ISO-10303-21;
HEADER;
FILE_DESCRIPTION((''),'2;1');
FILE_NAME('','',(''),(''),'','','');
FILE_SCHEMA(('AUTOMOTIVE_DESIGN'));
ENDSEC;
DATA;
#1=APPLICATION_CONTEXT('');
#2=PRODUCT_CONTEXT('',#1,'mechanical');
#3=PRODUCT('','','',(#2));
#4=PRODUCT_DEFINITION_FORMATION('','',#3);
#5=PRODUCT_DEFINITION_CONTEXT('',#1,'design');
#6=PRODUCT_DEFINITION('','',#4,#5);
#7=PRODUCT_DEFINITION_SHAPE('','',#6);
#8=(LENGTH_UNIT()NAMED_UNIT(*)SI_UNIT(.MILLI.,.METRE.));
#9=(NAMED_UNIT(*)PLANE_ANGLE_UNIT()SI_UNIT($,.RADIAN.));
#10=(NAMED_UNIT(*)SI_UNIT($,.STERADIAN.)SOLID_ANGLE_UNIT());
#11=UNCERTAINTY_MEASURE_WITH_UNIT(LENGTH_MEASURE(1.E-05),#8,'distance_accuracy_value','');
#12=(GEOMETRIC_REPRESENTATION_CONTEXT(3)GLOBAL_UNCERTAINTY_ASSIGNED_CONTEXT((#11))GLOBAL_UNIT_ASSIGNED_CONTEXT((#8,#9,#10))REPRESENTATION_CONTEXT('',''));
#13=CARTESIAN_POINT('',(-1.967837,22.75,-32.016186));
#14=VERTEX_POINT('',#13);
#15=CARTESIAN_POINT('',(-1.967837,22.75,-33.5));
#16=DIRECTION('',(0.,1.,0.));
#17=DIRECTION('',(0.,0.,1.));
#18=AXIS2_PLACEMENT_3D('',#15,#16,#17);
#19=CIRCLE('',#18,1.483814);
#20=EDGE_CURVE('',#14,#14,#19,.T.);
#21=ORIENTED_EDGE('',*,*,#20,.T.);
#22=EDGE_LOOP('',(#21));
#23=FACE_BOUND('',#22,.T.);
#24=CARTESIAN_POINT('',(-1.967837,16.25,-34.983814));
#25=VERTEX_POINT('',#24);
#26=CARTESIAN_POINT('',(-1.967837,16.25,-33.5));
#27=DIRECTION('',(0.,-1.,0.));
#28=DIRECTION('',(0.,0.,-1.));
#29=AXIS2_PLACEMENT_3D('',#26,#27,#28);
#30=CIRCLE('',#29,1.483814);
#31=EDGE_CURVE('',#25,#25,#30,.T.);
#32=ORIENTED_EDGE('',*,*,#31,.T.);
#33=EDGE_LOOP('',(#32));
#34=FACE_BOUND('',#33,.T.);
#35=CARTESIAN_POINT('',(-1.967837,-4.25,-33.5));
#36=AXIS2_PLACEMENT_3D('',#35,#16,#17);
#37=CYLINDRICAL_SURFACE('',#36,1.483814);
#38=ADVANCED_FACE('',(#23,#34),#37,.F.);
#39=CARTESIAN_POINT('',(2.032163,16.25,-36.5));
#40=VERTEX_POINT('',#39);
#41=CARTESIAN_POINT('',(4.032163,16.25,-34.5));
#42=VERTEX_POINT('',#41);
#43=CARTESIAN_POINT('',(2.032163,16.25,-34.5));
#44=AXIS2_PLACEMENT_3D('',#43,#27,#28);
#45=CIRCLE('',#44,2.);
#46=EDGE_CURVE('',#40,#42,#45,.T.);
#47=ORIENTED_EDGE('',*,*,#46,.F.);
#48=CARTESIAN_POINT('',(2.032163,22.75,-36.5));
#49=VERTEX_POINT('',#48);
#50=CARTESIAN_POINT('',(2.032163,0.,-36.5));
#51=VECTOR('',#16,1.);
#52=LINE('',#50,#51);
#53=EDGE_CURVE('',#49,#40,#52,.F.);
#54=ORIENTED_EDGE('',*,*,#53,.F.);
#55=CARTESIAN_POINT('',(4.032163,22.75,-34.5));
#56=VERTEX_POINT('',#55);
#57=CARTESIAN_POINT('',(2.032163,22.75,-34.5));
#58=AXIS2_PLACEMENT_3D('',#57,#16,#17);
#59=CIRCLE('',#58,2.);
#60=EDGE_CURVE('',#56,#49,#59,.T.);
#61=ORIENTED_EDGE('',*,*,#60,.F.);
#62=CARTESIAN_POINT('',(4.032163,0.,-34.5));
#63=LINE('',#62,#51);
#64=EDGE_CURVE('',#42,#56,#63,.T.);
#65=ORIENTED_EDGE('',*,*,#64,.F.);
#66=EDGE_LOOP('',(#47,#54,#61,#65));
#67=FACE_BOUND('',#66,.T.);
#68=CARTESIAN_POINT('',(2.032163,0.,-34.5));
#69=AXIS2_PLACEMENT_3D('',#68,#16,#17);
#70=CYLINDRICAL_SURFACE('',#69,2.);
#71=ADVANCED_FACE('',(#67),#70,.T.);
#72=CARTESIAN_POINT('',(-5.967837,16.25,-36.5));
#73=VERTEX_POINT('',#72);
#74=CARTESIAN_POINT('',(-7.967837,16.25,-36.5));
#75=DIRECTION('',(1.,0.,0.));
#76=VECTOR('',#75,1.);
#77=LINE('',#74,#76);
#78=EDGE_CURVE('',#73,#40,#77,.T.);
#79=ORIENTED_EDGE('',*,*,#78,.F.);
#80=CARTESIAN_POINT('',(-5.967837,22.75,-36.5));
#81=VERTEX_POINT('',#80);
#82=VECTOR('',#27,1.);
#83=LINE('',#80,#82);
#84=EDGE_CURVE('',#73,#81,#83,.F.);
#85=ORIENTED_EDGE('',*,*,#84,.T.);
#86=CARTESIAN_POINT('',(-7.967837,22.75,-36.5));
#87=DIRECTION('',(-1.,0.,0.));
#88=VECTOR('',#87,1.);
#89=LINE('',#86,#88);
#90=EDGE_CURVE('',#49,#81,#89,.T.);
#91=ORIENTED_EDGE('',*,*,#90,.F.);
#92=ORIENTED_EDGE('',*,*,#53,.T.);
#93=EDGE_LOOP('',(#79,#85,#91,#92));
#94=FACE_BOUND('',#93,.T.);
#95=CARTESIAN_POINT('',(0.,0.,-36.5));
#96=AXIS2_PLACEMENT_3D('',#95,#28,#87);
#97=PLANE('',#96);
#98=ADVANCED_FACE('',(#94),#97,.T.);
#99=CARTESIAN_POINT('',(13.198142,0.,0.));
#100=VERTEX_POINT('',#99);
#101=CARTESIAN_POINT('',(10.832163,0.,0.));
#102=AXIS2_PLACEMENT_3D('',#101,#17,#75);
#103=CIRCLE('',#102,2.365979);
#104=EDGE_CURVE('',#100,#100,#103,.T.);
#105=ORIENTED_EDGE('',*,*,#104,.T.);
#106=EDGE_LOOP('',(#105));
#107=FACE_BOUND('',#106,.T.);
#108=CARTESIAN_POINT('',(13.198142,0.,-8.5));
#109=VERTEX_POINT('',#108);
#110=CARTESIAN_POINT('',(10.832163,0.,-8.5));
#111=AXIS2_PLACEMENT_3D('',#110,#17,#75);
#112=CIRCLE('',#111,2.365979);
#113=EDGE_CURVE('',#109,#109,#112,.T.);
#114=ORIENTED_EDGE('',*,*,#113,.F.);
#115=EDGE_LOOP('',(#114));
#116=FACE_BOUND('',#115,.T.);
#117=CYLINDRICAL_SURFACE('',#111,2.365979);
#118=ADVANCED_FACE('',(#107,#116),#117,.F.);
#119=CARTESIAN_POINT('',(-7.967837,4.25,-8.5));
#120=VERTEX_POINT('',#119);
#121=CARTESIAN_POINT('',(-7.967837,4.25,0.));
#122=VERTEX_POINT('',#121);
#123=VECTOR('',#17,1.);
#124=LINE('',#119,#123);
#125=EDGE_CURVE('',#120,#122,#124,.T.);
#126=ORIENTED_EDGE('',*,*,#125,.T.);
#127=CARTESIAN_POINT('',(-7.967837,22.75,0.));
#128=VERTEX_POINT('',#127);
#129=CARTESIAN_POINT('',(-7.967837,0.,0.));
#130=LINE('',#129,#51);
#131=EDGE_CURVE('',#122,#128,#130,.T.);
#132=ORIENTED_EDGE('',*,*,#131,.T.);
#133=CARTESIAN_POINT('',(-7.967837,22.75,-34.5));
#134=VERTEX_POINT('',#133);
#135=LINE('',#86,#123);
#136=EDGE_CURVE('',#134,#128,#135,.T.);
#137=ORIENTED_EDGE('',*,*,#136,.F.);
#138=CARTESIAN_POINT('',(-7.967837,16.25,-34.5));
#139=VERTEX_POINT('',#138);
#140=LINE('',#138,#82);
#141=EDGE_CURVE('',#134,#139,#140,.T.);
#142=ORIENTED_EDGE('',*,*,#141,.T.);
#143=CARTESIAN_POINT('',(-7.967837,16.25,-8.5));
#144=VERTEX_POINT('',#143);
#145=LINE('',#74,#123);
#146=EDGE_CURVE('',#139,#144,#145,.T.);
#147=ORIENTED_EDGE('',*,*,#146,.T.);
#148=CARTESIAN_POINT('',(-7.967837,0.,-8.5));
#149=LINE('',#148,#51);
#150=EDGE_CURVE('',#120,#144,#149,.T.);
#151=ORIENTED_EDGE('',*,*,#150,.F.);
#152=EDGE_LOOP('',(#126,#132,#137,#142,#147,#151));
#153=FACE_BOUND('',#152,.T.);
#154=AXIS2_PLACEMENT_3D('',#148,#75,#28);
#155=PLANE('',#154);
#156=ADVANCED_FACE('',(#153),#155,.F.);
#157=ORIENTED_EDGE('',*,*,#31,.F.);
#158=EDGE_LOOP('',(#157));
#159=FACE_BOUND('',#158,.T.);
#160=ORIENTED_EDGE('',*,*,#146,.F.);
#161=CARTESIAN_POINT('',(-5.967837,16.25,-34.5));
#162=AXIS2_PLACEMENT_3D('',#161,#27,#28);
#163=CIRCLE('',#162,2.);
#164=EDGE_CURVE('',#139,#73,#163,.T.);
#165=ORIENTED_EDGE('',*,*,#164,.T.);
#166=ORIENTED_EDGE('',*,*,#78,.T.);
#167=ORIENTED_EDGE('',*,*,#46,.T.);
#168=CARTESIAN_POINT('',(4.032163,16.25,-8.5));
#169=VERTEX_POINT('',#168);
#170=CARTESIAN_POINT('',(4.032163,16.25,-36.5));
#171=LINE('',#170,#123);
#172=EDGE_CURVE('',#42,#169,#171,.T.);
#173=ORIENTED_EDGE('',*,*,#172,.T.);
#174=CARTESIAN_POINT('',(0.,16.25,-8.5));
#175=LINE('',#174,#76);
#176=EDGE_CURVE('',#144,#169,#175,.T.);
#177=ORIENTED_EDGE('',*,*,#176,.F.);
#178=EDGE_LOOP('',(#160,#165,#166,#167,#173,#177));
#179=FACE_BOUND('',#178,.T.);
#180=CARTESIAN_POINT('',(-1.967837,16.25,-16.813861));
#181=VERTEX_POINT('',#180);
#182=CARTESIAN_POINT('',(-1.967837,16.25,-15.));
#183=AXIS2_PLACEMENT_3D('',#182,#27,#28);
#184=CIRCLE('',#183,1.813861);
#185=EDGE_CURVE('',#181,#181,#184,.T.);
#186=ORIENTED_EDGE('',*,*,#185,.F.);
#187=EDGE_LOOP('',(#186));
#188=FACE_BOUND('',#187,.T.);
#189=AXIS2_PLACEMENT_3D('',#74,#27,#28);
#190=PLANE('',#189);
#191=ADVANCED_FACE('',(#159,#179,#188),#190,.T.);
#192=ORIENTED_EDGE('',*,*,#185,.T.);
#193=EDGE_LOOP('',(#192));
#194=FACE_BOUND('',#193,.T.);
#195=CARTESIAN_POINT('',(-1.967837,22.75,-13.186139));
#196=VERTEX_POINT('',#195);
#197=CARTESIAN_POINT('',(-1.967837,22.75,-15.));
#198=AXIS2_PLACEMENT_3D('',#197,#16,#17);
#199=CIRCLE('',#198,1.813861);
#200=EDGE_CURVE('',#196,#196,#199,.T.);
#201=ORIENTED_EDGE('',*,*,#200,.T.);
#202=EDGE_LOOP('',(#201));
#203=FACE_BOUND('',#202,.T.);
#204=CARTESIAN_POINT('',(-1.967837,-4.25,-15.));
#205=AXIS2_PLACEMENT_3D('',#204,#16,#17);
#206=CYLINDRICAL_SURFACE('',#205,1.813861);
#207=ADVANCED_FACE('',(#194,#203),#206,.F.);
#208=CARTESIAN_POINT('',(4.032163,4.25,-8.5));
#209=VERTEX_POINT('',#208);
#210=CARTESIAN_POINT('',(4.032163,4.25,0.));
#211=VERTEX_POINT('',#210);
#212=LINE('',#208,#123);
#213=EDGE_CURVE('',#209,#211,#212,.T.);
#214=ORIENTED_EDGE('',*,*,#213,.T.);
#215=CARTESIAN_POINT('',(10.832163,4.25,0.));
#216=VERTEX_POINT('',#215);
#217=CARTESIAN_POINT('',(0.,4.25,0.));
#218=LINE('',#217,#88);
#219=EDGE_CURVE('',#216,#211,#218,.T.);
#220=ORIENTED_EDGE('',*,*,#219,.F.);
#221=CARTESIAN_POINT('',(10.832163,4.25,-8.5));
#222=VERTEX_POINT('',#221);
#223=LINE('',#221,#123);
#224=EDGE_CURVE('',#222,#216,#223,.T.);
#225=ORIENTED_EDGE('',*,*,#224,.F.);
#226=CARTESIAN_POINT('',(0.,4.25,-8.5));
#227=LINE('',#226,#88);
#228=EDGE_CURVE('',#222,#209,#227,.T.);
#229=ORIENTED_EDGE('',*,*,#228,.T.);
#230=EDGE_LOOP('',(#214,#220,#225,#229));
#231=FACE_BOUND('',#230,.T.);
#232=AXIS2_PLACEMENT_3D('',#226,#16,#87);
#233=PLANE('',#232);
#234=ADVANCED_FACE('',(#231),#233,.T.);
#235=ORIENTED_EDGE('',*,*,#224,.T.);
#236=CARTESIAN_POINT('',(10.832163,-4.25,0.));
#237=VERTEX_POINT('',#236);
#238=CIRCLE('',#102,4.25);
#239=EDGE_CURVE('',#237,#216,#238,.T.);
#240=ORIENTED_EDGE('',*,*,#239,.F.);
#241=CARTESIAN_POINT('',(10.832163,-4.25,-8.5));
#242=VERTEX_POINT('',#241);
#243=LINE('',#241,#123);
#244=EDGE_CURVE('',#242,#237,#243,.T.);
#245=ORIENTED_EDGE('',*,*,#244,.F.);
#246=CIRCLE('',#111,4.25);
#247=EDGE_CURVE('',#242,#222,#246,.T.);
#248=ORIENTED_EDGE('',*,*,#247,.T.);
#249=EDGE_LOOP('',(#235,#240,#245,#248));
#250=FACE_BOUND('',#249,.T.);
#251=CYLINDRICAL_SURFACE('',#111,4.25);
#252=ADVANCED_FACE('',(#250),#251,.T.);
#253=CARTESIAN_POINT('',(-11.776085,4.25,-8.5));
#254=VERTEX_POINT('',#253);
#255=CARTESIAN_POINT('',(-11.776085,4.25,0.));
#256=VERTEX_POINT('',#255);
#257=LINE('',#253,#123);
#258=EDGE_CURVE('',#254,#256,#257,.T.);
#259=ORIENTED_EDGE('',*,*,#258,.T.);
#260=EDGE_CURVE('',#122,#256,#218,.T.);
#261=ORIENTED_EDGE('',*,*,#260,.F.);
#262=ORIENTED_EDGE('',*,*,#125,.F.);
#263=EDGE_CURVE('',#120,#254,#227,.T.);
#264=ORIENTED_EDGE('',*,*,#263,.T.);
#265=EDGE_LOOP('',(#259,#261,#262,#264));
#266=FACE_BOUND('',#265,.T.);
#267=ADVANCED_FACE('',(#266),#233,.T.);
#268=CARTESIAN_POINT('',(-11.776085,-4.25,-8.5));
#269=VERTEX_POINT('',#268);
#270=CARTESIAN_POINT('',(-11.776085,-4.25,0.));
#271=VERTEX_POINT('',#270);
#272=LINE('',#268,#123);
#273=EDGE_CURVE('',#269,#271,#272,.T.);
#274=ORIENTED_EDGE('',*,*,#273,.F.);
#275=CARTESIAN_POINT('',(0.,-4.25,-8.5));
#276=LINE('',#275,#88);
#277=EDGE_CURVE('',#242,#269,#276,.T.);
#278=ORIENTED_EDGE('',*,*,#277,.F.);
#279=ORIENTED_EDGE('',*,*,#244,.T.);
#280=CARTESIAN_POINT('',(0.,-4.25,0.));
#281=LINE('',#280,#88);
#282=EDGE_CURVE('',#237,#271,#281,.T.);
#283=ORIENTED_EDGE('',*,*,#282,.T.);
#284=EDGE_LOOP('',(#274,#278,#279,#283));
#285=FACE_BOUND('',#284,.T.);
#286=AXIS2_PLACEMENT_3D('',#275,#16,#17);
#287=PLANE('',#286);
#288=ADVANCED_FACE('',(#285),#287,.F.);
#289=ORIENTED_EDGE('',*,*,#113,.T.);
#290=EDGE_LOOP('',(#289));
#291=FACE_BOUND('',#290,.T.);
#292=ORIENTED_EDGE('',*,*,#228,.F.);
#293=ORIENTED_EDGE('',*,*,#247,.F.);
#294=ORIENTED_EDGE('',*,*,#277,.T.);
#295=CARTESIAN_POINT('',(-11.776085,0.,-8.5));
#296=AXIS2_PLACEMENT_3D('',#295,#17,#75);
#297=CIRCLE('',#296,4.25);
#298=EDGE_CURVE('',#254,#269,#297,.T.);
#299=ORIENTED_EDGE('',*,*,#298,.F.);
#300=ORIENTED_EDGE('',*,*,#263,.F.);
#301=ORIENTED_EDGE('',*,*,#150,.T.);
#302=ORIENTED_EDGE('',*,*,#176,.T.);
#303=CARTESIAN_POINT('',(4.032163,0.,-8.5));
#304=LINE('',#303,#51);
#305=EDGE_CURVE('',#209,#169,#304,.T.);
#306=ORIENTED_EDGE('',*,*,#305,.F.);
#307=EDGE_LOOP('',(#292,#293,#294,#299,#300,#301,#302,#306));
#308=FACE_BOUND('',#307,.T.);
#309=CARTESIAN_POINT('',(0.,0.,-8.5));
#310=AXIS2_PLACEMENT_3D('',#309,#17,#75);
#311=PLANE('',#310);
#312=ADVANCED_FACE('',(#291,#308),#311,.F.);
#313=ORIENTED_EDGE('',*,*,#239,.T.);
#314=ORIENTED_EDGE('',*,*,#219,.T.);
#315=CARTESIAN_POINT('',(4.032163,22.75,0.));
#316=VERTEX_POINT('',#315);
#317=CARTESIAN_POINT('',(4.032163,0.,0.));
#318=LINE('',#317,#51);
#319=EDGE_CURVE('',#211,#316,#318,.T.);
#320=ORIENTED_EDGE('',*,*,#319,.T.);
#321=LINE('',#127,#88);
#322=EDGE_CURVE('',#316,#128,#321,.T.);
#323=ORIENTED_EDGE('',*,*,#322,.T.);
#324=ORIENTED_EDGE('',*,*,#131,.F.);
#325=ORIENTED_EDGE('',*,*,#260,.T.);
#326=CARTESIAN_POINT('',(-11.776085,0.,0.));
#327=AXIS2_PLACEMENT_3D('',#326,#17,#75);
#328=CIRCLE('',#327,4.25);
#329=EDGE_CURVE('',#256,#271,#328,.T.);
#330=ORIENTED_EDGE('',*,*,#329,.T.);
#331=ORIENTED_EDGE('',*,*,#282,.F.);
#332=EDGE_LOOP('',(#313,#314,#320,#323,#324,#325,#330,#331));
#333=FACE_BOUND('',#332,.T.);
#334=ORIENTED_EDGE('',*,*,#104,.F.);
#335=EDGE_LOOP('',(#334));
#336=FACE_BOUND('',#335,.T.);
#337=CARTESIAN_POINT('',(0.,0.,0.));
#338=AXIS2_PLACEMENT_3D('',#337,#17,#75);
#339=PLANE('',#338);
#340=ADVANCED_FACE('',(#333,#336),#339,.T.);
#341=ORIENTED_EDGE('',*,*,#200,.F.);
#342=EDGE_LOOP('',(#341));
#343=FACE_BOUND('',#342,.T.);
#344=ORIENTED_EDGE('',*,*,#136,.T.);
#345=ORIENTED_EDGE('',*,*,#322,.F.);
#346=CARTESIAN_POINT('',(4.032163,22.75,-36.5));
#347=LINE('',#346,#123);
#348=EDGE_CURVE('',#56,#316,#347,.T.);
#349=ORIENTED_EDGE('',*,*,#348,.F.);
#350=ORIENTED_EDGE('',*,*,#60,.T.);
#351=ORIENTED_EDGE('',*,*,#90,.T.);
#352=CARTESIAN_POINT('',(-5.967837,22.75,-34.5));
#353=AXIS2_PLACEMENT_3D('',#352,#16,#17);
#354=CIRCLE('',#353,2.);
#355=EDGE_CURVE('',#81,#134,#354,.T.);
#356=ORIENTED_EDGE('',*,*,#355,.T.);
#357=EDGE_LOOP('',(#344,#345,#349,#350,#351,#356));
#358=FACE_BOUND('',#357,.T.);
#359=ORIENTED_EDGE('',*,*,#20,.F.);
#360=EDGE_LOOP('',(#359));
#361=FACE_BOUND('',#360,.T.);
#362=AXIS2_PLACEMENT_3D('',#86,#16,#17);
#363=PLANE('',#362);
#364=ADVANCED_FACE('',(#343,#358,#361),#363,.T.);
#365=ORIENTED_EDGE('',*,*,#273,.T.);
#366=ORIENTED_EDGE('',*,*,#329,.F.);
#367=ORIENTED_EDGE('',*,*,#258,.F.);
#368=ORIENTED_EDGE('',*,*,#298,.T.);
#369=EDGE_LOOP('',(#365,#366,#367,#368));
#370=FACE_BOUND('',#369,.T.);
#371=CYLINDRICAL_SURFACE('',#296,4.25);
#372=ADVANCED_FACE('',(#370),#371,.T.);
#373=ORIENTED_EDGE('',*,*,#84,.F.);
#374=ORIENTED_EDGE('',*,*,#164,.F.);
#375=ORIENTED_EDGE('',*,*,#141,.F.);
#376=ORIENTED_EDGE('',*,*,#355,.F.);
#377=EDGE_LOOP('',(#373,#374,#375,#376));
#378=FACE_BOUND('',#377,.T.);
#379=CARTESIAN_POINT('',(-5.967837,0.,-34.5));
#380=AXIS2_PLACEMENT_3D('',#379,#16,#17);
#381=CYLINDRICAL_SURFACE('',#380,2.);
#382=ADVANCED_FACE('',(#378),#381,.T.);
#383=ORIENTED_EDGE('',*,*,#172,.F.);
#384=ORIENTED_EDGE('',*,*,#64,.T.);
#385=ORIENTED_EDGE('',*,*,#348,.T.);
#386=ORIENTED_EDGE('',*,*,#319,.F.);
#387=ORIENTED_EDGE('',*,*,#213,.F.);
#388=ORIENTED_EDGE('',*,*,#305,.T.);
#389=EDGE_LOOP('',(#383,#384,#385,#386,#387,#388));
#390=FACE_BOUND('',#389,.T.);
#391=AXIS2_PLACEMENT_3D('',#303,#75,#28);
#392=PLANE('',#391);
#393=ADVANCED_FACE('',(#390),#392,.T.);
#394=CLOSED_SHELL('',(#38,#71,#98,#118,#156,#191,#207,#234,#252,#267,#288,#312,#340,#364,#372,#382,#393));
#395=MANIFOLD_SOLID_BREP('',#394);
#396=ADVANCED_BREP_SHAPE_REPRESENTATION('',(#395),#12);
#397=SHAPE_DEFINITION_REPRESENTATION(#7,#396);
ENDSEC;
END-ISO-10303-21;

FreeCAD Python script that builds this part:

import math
import FreeCAD as App
import Part
import Sketcher
from FreeCAD import Vector
Q = App.Units.Quantity


def edges_at(feature, points):
    """Names of the edges that pass closest to the given points."""
    edges = feature.Shape.Edges
    near = lambda p: min(range(len(edges)), key=lambda i: edges[i].distToShape(Part.Vertex(*p))[0])
    return sorted({f"Edge{near(p) + 1}" for p in points})

doc = App.newDocument("Part")
params = doc.addObject("Spreadsheet::Sheet", "Params")
for row, (alias, value) in enumerate([
    ("sketch1_width", "12 mm"),
    ("sketch1_radius", "4.25 mm"),
    ("sketch1_width2", "6.8 mm"),
    ("pad1_length", "8.5 mm"),
    ("sketch2_width", "12 mm"),
    ("sketch2_height", "6.5 mm"),
    ("pad2_length", "36.5 mm"),
    ("fillet_radius", "2 mm"),
], start=1):
    params.set(f"A{row}", alias)
    params.set(f"B{row}", "=" + value)
    params.setAlias(f"B{row}", alias)

body = doc.addObject("PartDesign::Body", "Body")

sketch1 = body.newObject("Sketcher::SketchObject", "Sketch")
sketch1.AttachmentSupport = (doc.getObject("XY_Plane"), [""])
sketch1.MapMode = "FlatFace"
sketch1.addGeometry(Part.LineSegment(Vector(-11.776085, -4.25, 0), Vector(10.832163, -4.25, 0)), False)
sketch1.addGeometry(Part.ArcOfCircle(Part.Circle(Vector(10.832163, 0, 0), Vector(0, 0, 1), 4.25), math.radians(-90), math.radians(90)), False)
sketch1.addGeometry(Part.LineSegment(Vector(10.832163, 4.25, 0), Vector(4.032163, 4.25, 0)), False)
sketch1.addGeometry(Part.LineSegment(Vector(4.032163, 4.25, 0), Vector(4.032163, 16.25, 0)), False)
sketch1.addGeometry(Part.LineSegment(Vector(4.032163, 16.25, 0), Vector(-7.967837, 16.25, 0)), False)
sketch1.addGeometry(Part.LineSegment(Vector(-7.967837, 16.25, 0), Vector(-7.967837, 4.25, 0)), False)
sketch1.addGeometry(Part.LineSegment(Vector(-7.967837, 4.25, 0), Vector(-11.776085, 4.25, 0)), False)
sketch1.addGeometry(Part.ArcOfCircle(Part.Circle(Vector(-11.776085, 0, 0), Vector(0, 0, 1), 4.25), math.radians(90), math.radians(270)), False)
sketch1.addGeometry(Part.Circle(Vector(10.832163, 0, 0), Vector(0, 0, 1), 2.365979), False)
sketch1.addConstraint(Sketcher.Constraint("Tangent", 0, 2, 1, 1))
sketch1.addConstraint(Sketcher.Constraint("Tangent", 1, 2, 2, 1))
sketch1.addConstraint(Sketcher.Constraint("Coincident", 2, 2, 3, 1))
sketch1.addConstraint(Sketcher.Constraint("Coincident", 3, 2, 4, 1))
sketch1.addConstraint(Sketcher.Constraint("Coincident", 4, 2, 5, 1))
sketch1.addConstraint(Sketcher.Constraint("Coincident", 5, 2, 6, 1))
sketch1.addConstraint(Sketcher.Constraint("Tangent", 6, 2, 7, 1))
sketch1.addConstraint(Sketcher.Constraint("Tangent", 7, 2, 0, 1))
sketch1.addConstraint(Sketcher.Constraint("Horizontal", 0))
sketch1.addConstraint(Sketcher.Constraint("Horizontal", 2))
sketch1.addConstraint(Sketcher.Constraint("Vertical", 3))
sketch1.addConstraint(Sketcher.Constraint("Horizontal", 4))
sketch1.addConstraint(Sketcher.Constraint("Vertical", 5))
sketch1.addConstraint(Sketcher.Constraint("Horizontal", 6))
sketch1.addConstraint(Sketcher.Constraint("Coincident", 8, 3, 1, 3))
sketch1.addConstraint(Sketcher.Constraint("Equal", 1, 7))
sketch1.addConstraint(Sketcher.Constraint("PointOnObject", 1, 3, -1))
sketch1.addConstraint(Sketcher.Constraint("Equal", 4, 3))
sketch1.addConstraint(Sketcher.Constraint("DistanceX", 4, 2, 4, 1, Q("12 mm")))
sketch1.addConstraint(Sketcher.Constraint("Radius", 1, Q("4.25 mm")))
sketch1.addConstraint(Sketcher.Constraint("DistanceX", 2, 2, 2, 1, Q("6.8 mm")))
sketch1.addConstraint(Sketcher.Constraint("Diameter", 8, Q("4.731959 mm")))
sketch1.addConstraint(Sketcher.Constraint("DistanceX", 0, 1, 0, 2, Q("22.608247 mm")))
sketch1.addConstraint(Sketcher.Constraint("DistanceX", -1, 1, 1, 3, Q("10.832163 mm")))
sketch1.setExpression("Constraints[18]", "Params.sketch1_width")
sketch1.setExpression("Constraints[19]", "Params.sketch1_radius")
sketch1.setExpression("Constraints[20]", "Params.sketch1_width2")
pad1 = body.newObject("PartDesign::Pad", "Pad")
pad1.Profile = sketch1
pad1.setExpression("Length", "Params.pad1_length")
pad1.Reversed = True

sketch2 = body.newObject("Sketcher::SketchObject", "Sketch001")
sketch2.AttachmentSupport = (doc.getObject("XY_Plane"), [""])
sketch2.MapMode = "FlatFace"
sketch2.addGeometry(Part.LineSegment(Vector(-7.967837, 22.75, 0), Vector(-7.967837, 16.25, 0)), False)
sketch2.addGeometry(Part.LineSegment(Vector(-7.967837, 16.25, 0), Vector(4.032163, 16.25, 0)), False)
sketch2.addGeometry(Part.LineSegment(Vector(4.032163, 16.25, 0), Vector(4.032163, 22.75, 0)), False)
sketch2.addGeometry(Part.LineSegment(Vector(4.032163, 22.75, 0), Vector(-7.967837, 22.75, 0)), False)
sketch2.addConstraint(Sketcher.Constraint("Coincident", 0, 2, 1, 1))
sketch2.addConstraint(Sketcher.Constraint("Coincident", 1, 2, 2, 1))
sketch2.addConstraint(Sketcher.Constraint("Coincident", 2, 2, 3, 1))
sketch2.addConstraint(Sketcher.Constraint("Coincident", 3, 2, 0, 1))
sketch2.addConstraint(Sketcher.Constraint("Vertical", 0))
sketch2.addConstraint(Sketcher.Constraint("Horizontal", 1))
sketch2.addConstraint(Sketcher.Constraint("Vertical", 2))
sketch2.addConstraint(Sketcher.Constraint("Horizontal", 3))
sketch2.addConstraint(Sketcher.Constraint("DistanceX", 1, 1, 1, 2, Q("12 mm")))
sketch2.addConstraint(Sketcher.Constraint("DistanceY", 0, 2, 0, 1, Q("6.5 mm")))
sketch2.addConstraint(Sketcher.Constraint("DistanceY", -1, 1, 0, 2, Q("16.25 mm")))
sketch2.addConstraint(Sketcher.Constraint("DistanceX", 0, 2, -1, 1, Q("7.967837 mm")))
sketch2.setExpression("Constraints[8]", "Params.sketch2_width")
sketch2.setExpression("Constraints[9]", "Params.sketch2_height")
pad2 = body.newObject("PartDesign::Pad", "Pad001")
pad2.Profile = sketch2
pad2.setExpression("Length", "Params.pad2_length")
pad2.Reversed = True

sketch3 = body.newObject("Sketcher::SketchObject", "Sketch002")
sketch3.AttachmentSupport = (doc.getObject("XZ_Plane"), [""])
sketch3.MapMode = "FlatFace"
sketch3.AttachmentOffset = App.Placement(Vector(0, 0, -22.75), App.Rotation())
sketch3.addGeometry(Part.Circle(Vector(-1.967837, -33.5, 0), Vector(0, 0, 1), 1.483814), False)
sketch3.addGeometry(Part.Circle(Vector(-1.967837, -15, 0), Vector(0, 0, 1), 1.813861), False)
sketch3.addConstraint(Sketcher.Constraint("Vertical", 0, 3, 1, 3))
sketch3.addConstraint(Sketcher.Constraint("DistanceY", 1, 3, -1, 1, Q("15 mm")))
sketch3.addConstraint(Sketcher.Constraint("DistanceY", 0, 3, -1, 1, Q("33.5 mm")))
sketch3.addConstraint(Sketcher.Constraint("Diameter", 0, Q("2.967628 mm")))
sketch3.addConstraint(Sketcher.Constraint("Diameter", 1, Q("3.627722 mm")))
sketch3.addConstraint(Sketcher.Constraint("DistanceX", 0, 3, -1, 1, Q("1.967837 mm")))
pocket1 = body.newObject("PartDesign::Pocket", "Pocket")
pocket1.Profile = sketch3
pocket1.Type = "ThroughAll"
pocket1.Reversed = True
doc.recompute()

fillet = body.newObject("PartDesign::Fillet", "Fillet")
fillet.Base = (pocket1, edges_at(pocket1, [(-7.968, 19.5, -36.5), (4.032, 19.5, -36.5)]))
fillet.setExpression("Radius", "Params.fillet_radius")

doc.recompute()
